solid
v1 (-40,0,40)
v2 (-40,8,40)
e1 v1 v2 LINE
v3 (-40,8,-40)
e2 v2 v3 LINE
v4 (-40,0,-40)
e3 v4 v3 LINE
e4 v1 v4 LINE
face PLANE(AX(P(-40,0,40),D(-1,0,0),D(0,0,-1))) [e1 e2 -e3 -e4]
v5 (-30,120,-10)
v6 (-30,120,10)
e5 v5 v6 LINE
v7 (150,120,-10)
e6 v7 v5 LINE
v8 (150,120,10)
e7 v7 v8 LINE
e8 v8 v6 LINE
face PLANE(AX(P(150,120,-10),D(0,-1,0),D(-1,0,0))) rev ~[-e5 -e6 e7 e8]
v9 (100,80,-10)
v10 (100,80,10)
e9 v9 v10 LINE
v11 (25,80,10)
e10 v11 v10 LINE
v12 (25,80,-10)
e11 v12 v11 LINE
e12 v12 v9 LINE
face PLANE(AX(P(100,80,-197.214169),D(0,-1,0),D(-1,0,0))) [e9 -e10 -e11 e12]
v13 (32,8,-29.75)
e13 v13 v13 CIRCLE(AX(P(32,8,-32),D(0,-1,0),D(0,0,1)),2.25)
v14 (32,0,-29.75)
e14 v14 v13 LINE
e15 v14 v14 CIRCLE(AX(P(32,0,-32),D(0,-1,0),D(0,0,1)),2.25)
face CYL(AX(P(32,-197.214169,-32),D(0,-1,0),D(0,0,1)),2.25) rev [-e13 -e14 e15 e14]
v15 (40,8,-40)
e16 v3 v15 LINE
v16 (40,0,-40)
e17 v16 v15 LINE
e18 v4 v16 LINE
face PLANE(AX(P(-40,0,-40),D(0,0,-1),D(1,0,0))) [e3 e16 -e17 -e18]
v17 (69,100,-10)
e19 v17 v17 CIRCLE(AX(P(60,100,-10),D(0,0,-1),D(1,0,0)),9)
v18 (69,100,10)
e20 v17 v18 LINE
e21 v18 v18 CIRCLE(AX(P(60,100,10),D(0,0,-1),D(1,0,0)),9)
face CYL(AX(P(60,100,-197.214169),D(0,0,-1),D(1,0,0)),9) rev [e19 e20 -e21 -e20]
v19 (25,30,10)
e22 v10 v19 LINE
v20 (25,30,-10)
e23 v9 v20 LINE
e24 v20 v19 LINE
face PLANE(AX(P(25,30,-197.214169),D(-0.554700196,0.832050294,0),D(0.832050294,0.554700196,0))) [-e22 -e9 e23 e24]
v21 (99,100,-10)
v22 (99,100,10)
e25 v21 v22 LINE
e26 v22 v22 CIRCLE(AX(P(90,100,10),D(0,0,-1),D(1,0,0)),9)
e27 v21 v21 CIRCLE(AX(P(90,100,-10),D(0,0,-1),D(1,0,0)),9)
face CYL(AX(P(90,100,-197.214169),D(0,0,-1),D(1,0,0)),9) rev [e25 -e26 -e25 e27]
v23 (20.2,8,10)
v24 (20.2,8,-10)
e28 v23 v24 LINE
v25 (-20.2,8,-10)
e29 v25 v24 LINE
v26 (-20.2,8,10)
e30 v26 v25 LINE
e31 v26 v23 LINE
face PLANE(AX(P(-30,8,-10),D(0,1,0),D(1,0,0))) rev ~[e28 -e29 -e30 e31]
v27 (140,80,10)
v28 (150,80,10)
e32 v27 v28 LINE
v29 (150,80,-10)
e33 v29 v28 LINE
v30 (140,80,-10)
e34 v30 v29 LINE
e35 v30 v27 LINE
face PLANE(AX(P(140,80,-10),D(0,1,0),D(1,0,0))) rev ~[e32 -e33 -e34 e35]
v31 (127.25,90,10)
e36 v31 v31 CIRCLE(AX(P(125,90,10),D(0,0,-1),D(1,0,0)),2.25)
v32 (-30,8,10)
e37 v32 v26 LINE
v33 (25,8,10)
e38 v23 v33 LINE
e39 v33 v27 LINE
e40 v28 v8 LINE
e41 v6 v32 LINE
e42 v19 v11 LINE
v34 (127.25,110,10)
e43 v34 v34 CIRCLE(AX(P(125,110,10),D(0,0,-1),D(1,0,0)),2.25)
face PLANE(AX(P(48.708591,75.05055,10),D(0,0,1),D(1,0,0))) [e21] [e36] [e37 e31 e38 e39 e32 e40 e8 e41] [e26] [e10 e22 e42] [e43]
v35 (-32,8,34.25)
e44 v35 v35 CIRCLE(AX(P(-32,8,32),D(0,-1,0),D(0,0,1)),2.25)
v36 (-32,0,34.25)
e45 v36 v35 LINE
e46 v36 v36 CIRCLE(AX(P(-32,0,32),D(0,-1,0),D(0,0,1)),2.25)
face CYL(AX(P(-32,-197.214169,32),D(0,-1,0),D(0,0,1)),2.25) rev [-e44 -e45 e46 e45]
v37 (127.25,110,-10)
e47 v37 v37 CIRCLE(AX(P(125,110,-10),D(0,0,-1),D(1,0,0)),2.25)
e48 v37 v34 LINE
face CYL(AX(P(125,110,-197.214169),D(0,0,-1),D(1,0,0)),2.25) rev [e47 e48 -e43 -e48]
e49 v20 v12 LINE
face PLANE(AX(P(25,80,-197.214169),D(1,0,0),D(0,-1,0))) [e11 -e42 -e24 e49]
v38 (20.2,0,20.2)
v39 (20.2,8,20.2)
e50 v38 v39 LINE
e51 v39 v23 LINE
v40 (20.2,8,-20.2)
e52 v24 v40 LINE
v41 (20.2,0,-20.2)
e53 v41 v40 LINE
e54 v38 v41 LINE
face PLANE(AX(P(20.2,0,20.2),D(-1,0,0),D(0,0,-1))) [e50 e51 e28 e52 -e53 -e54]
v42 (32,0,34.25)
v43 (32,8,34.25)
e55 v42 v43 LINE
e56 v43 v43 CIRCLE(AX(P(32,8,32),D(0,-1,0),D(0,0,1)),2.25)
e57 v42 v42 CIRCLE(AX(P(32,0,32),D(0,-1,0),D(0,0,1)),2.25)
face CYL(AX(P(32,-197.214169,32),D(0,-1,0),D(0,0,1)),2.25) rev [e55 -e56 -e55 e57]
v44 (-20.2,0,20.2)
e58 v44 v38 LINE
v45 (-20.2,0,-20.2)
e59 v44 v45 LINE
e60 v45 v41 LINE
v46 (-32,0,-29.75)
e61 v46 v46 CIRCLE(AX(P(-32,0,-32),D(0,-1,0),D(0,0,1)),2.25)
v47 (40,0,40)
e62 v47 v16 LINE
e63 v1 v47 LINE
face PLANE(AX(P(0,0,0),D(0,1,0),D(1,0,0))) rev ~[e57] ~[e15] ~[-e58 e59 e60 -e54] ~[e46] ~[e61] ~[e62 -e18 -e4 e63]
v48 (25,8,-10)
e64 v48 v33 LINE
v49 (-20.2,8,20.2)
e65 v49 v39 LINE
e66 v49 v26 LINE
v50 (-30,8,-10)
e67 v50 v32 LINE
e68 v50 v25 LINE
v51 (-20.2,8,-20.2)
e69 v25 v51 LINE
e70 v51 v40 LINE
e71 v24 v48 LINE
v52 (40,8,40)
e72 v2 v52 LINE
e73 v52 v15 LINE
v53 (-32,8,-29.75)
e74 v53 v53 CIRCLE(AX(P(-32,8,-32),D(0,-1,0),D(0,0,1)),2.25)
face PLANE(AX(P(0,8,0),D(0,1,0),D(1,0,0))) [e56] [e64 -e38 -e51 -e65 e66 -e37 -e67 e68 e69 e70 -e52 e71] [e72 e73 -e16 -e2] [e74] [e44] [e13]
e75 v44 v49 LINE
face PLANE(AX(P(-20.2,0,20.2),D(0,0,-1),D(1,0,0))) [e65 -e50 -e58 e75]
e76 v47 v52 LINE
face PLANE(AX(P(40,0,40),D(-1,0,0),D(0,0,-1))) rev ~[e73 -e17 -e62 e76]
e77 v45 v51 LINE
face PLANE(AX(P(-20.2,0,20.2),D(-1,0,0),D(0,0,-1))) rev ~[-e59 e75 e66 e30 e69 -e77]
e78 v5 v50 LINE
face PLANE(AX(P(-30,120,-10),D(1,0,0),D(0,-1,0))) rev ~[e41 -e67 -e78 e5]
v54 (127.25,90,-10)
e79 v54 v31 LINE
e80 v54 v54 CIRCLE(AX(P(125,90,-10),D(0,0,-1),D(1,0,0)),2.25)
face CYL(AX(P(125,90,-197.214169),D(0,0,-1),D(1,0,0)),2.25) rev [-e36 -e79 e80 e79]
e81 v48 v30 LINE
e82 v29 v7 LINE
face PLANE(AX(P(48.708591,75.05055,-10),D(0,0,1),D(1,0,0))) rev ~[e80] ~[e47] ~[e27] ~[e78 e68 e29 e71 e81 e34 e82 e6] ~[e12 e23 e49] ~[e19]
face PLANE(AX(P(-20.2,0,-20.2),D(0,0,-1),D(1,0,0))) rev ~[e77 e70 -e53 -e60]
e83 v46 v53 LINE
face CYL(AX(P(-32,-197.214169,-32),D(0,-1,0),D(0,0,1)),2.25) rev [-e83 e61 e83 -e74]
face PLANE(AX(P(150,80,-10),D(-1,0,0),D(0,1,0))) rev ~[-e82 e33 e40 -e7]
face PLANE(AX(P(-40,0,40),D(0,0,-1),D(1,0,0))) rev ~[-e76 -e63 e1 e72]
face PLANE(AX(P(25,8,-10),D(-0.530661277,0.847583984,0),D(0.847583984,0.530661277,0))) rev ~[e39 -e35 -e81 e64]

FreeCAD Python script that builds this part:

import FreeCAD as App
import Part
import Sketcher
from FreeCAD import Vector
Q = App.Units.Quantity

doc = App.newDocument("Part")
body = doc.addObject("PartDesign::Body", "Body")

# Sketch on XZ plane
sketch1 = body.newObject("Sketcher::SketchObject", "Sketch")
sketch1.AttachmentSupport = (doc.getObject("XZ_Plane"), [""])
sketch1.MapMode = "FlatFace"
sketch1.addGeometry(Part.LineSegment(Vector(-40, -40, 0), Vector(-40, 40, 0)), False)
sketch1.addGeometry(Part.LineSegment(Vector(-40, 40, 0), Vector(40, 40, 0)), False)
sketch1.addGeometry(Part.LineSegment(Vector(40, 40, 0), Vector(40, -40, 0)), False)
sketch1.addGeometry(Part.LineSegment(Vector(40, -40, 0), Vector(-40, -40, 0)), False)
sketch1.addGeometry(Part.LineSegment(Vector(20, 20, 0), Vector(-20, 20, 0)), False)
sketch1.addGeometry(Part.LineSegment(Vector(-20, 20, 0), Vector(-20, -20, 0)), False)
sketch1.addGeometry(Part.LineSegment(Vector(-20, -20, 0), Vector(20, -20, 0)), False)
sketch1.addGeometry(Part.LineSegment(Vector(20, -20, 0), Vector(20, 20, 0)), False)
sketch1.addConstraint(Sketcher.Constraint("Coincident", 0, 2, 1, 1))
sketch1.addConstraint(Sketcher.Constraint("Coincident", 1, 2, 2, 1))
sketch1.addConstraint(Sketcher.Constraint("Coincident", 2, 2, 3, 1))
sketch1.addConstraint(Sketcher.Constraint("Coincident", 3, 2, 0, 1))
sketch1.addConstraint(Sketcher.Constraint("Coincident", 4, 2, 5, 1))
sketch1.addConstraint(Sketcher.Constraint("Coincident", 5, 2, 6, 1))
sketch1.addConstraint(Sketcher.Constraint("Coincident", 6, 2, 7, 1))
sketch1.addConstraint(Sketcher.Constraint("Coincident", 7, 2, 4, 1))
sketch1.addConstraint(Sketcher.Constraint("Vertical", 0))
sketch1.addConstraint(Sketcher.Constraint("Horizontal", 1))
sketch1.addConstraint(Sketcher.Constraint("Vertical", 2))
sketch1.addConstraint(Sketcher.Constraint("Horizontal", 3))
sketch1.addConstraint(Sketcher.Constraint("Horizontal", 4))
sketch1.addConstraint(Sketcher.Constraint("Vertical", 5))
sketch1.addConstraint(Sketcher.Constraint("Horizontal", 6))
sketch1.addConstraint(Sketcher.Constraint("Vertical", 7))
sketch1.addConstraint(Sketcher.Constraint("Symmetric", 0, 2, 2, 2, -1, 1))
sketch1.addConstraint(Sketcher.Constraint("Symmetric", 4, 2, 6, 2, -1, 1))
sketch1.addConstraint(Sketcher.Constraint("Equal", 3, 0))
sketch1.addConstraint(Sketcher.Constraint("Equal", 6, 5))
sketch1.addConstraint(Sketcher.Constraint("DistanceX", 1, 1, 1, 2, Q("80 mm")))
sketch1.addConstraint(Sketcher.Constraint("DistanceX", 4, 2, 4, 1, Q("40.4 mm")))
pad1 = body.newObject("PartDesign::Pad", "Pad")
pad1.Profile = sketch1
pad1.Length = 8
pad1.Reversed = True

# Sketch on XY plane
sketch2 = body.newObject("Sketcher::SketchObject", "Sketch001")
sketch2.AttachmentSupport = (doc.getObject("XY_Plane"), [""])
sketch2.MapMode = "FlatFace"
sketch2.AttachmentOffset = App.Placement(Vector(0, 0, -10), App.Rotation())
sketch2.addGeometry(Part.LineSegment(Vector(-30, 8, 0), Vector(25, 8, 0)), False)
sketch2.addGeometry(Part.LineSegment(Vector(25, 8, 0), Vector(140, 80, 0)), False)
sketch2.addGeometry(Part.LineSegment(Vector(140, 80, 0), Vector(150, 80, 0)), False)
sketch2.addGeometry(Part.LineSegment(Vector(150, 80, 0), Vector(150, 120, 0)), False)
sketch2.addGeometry(Part.LineSegment(Vector(150, 120, 0), Vector(-30, 120, 0)), False)
sketch2.addGeometry(Part.LineSegment(Vector(-30, 120, 0), Vector(-30, 8, 0)), False)
sketch2.addConstraint(Sketcher.Constraint("Coincident", 0, 2, 1, 1))
sketch2.addConstraint(Sketcher.Constraint("Coincident", 1, 2, 2, 1))
sketch2.addConstraint(Sketcher.Constraint("Coincident", 2, 2, 3, 1))
sketch2.addConstraint(Sketcher.Constraint("Coincident", 3, 2, 4, 1))
sketch2.addConstraint(Sketcher.Constraint("Coincident", 4, 2, 5, 1))
sketch2.addConstraint(Sketcher.Constraint("Coincident", 5, 2, 0, 1))
sketch2.addConstraint(Sketcher.Constraint("Horizontal", 0))
sketch2.addConstraint(Sketcher.Constraint("Horizontal", 2))
sketch2.addConstraint(Sketcher.Constraint("Vertical", 3))
sketch2.addConstraint(Sketcher.Constraint("Horizontal", 4))
sketch2.addConstraint(Sketcher.Constraint("Vertical", 5))
sketch2.addConstraint(Sketcher.Constraint("DistanceX", 0, 1, 0, 2, Q("55 mm")))
sketch2.addConstraint(Sketcher.Constraint("DistanceX", 2, 1, 2, 2, Q("10 mm")))
sketch2.addConstraint(Sketcher.Constraint("DistanceX", 4, 2, 4, 1, Q("180 mm")))
sketch2.addConstraint(Sketcher.Constraint("DistanceY", 3, 1, 3, 2, Q("40 mm")))
sketch2.addConstraint(Sketcher.Constraint("DistanceY", 5, 2, 5, 1, Q("112 mm")))
sketch2.addConstraint(Sketcher.Constraint("DistanceX", -1, 1, 0, 2, Q("25 mm")))
sketch2.addConstraint(Sketcher.Constraint("DistanceY", -1, 1, 0, 2, Q("8 mm")))
pad2 = body.newObject("PartDesign::Pad", "Pad001")
pad2.Profile = sketch2
pad2.Length = 20

# Sketch on XY plane
sketch3 = body.newObject("Sketcher::SketchObject", "Sketch002")
sketch3.AttachmentSupport = (doc.getObject("XY_Plane"), [""])
sketch3.MapMode = "FlatFace"
sketch3.addGeometry(Part.LineSegment(Vector(25, 30, 0), Vector(100, 80, 0)), False)
sketch3.addGeometry(Part.LineSegment(Vector(100, 80, 0), Vector(25, 80, 0)), False)
sketch3.addGeometry(Part.LineSegment(Vector(25, 80, 0), Vector(25, 30, 0)), False)
sketch3.addConstraint(Sketcher.Constraint("Coincident", 0, 2, 1, 1))
sketch3.addConstraint(Sketcher.Constraint("Coincident", 1, 2, 2, 1))
sketch3.addConstraint(Sketcher.Constraint("Coincident", 2, 2, 0, 1))
sketch3.addConstraint(Sketcher.Constraint("Horizontal", 1))
sketch3.addConstraint(Sketcher.Constraint("Vertical", 2))
sketch3.addConstraint(Sketcher.Constraint("DistanceX", 1, 2, 1, 1, Q("75 mm")))
sketch3.addConstraint(Sketcher.Constraint("DistanceY", 2, 2, 2, 1, Q("50 mm")))
sketch3.addConstraint(Sketcher.Constraint("DistanceX", -1, 1, 0, 2, Q("100 mm")))
sketch3.addConstraint(Sketcher.Constraint("DistanceY", -1, 1, 0, 2, Q("80 mm")))
pocket1 = body.newObject("PartDesign::Pocket", "Pocket")
pocket1.Profile = sketch3
pocket1.Type = "ThroughAll"
pocket1.Midplane = True

# Sketch on XY plane
sketch4 = body.newObject("Sketcher::SketchObject", "Sketch003")
sketch4.AttachmentSupport = (doc.getObject("XY_Plane"), [""])
sketch4.MapMode = "FlatFace"
sketch4.addGeometry(Part.Circle(Vector(60, 100, 0), Vector(0, 0, 1), 9), False)
sketch4.addGeometry(Part.Circle(Vector(90, 100, 0), Vector(0, 0, 1), 9), False)
sketch4.addConstraint(Sketcher.Constraint("Equal", 0, 1))
sketch4.addConstraint(Sketcher.Constraint("Horizontal", 0, 3, 1, 3))
sketch4.addConstraint(Sketcher.Constraint("Diameter", 0, Q("18 mm")))
sketch4.addConstraint(Sketcher.Constraint("DistanceX", -1, 1, 0, 3, Q("60 mm")))
sketch4.addConstraint(Sketcher.Constraint("DistanceY", -1, 1, 0, 3, Q("100 mm")))
sketch4.addConstraint(Sketcher.Constraint("DistanceX", -1, 1, 1, 3, Q("90 mm")))
pocket2 = body.newObject("PartDesign::Pocket", "Pocket001")
pocket2.Profile = sketch4
pocket2.Type = "ThroughAll"
pocket2.Midplane = True

# Sketch on XY plane
sketch5 = body.newObject("Sketcher::SketchObject", "Sketch004")
sketch5.AttachmentSupport = (doc.getObject("XY_Plane"), [""])
sketch5.MapMode = "FlatFace"
sketch5.addGeometry(Part.Circle(Vector(125, 90, 0), Vector(0, 0, 1), 2.2), False)
sketch5.addGeometry(Part.Circle(Vector(125, 110, 0), Vector(0, 0, 1), 2.2), False)
sketch5.addConstraint(Sketcher.Constraint("Equal", 0, 1))
sketch5.addConstraint(Sketcher.Constraint("Vertical", 0, 3, 1, 3))
sketch5.addConstraint(Sketcher.Constraint("Diameter", 0, Q("4.5 mm")))
sketch5.addConstraint(Sketcher.Constraint("DistanceX", -1, 1, 0, 3, Q("125 mm")))
sketch5.addConstraint(Sketcher.Constraint("DistanceY", -1, 1, 0, 3, Q("90 mm")))
sketch5.addConstraint(Sketcher.Constraint("DistanceY", -1, 1, 1, 3, Q("110 mm")))
pocket3 = body.newObject("PartDesign::Pocket", "Pocket002")
pocket3.Profile = sketch5
pocket3.Type = "ThroughAll"
pocket3.Midplane = True

# Sketch on XZ plane
sketch6 = body.newObject("Sketcher::SketchObject", "Sketch005")
sketch6.AttachmentSupport = (doc.getObject("XZ_Plane"), [""])
sketch6.MapMode = "FlatFace"
sketch6.addGeometry(Part.Circle(Vector(-32, 32, 0), Vector(0, 0, 1), 2.2), False)
sketch6.addGeometry(Part.Circle(Vector(-32, -32, 0), Vector(0, 0, 1), 2.2), False)
sketch6.addGeometry(Part.Circle(Vector(32, 32, 0), Vector(0, 0, 1), 2.2), False)
sketch6.addGeometry(Part.Circle(Vector(32, -32, 0), Vector(0, 0, 1), 2.2), False)
sketch6.addConstraint(Sketcher.Constraint("Equal", 0, 1))
sketch6.addConstraint(Sketcher.Constraint("Equal", 1, 2))
sketch6.addConstraint(Sketcher.Constraint("Equal", 2, 3))
sketch6.addConstraint(Sketcher.Constraint("Symmetric", 1, 3, 2, 3, -1, 1))
sketch6.addConstraint(Sketcher.Constraint("Symmetric", 0, 3, 3, 3, -1, 1))
sketch6.addConstraint(Sketcher.Constraint("Symmetric", 0, 3, 2, 3, -2))
sketch6.addConstraint(Sketcher.Constraint("Diameter", 0, Q("4.5 mm")))
sketch6.addConstraint(Sketcher.Constraint("DistanceX", 0, 3, -1, 1, Q("32 mm")))
sketch6.addConstraint(Sketcher.Constraint("DistanceY", -1, 1, 0, 3, Q("32 mm")))
pocket4 = body.newObject("PartDesign::Pocket", "Pocket003")
pocket4.Profile = sketch6
pocket4.Type = "ThroughAll"
pocket4.Midplane = True

doc.recompute()
